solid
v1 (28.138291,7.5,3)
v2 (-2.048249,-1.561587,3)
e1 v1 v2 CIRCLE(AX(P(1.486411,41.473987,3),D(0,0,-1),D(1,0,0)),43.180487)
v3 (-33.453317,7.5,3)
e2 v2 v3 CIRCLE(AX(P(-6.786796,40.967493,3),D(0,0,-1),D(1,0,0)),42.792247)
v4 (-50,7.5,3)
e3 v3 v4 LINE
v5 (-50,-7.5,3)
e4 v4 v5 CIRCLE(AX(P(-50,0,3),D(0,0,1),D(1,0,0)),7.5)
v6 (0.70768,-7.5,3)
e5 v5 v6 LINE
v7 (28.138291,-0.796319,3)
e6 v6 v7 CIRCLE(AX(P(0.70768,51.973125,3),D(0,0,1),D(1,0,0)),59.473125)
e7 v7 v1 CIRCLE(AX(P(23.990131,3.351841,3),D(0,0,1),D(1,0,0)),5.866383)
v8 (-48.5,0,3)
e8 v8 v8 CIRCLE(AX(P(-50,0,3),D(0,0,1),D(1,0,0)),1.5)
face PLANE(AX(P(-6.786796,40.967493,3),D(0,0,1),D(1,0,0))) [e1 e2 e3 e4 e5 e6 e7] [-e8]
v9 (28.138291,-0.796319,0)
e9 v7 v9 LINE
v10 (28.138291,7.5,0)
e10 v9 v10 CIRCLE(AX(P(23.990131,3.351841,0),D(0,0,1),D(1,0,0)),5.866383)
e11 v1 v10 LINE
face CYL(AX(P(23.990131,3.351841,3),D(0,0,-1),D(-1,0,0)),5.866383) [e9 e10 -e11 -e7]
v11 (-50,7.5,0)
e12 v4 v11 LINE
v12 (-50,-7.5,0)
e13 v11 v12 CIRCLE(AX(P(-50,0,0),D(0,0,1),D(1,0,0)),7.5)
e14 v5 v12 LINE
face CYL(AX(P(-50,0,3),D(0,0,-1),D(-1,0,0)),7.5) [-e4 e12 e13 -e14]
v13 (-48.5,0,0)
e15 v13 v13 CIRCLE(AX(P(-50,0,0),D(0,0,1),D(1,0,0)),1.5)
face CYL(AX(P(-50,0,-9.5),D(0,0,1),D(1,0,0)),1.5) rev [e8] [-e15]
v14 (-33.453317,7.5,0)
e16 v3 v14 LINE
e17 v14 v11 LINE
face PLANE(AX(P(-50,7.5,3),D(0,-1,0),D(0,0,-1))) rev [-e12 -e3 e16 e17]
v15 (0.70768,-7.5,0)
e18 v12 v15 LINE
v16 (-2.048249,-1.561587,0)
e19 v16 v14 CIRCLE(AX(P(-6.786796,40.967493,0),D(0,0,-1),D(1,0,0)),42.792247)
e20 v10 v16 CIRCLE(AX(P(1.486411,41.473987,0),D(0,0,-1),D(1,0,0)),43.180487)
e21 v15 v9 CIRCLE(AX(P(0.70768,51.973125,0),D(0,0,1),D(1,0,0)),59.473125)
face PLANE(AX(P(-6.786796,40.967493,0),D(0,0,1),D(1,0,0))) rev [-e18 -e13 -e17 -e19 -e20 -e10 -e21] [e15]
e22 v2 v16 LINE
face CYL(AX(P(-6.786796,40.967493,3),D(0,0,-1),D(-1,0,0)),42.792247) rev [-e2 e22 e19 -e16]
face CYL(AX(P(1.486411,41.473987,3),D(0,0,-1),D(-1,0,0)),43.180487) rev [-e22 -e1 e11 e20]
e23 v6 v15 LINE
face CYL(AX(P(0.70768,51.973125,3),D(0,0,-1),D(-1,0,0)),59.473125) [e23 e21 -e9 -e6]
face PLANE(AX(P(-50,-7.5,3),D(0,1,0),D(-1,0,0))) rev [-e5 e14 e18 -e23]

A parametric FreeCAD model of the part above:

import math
import FreeCAD as App
import Part
import Sketcher

doc = App.newDocument("Part")
body = doc.addObject("PartDesign::Body", "Body")

# Sketch on XY plane
sketch1 = body.newObject("Sketcher::SketchObject", "Sketch")
sketch1.AttachmentSupport = (doc.getObject("XY_Plane"), [""])
sketch1.MapMode = "FlatFace"
sketch1.addGeometry([
    Part.LineSegment(App.Vector(-33, 8, 0), App.Vector(-50, 8, 0)),  # 0
    Part.ArcOfCircle(Part.Circle(App.Vector(-50, 0, 0), App.Vector(0, 0, 1), 8), math.radians(90), math.radians(270)),  # 1
    Part.LineSegment(App.Vector(-50, -8, 0), App.Vector(1, -8, 0)),  # 2
    Part.ArcOfCircle(Part.Circle(App.Vector(1, 52, 0), App.Vector(0, 0, 1), 59), math.radians(-90), math.radians(-63)),  # 3
    Part.ArcOfCircle(Part.Circle(App.Vector(24, 3, 0), App.Vector(0, 0, 1), 6), math.radians(-45), math.radians(45)),  # 4
    Part.ArcOfCircle(Part.Circle(App.Vector(1, 41, 0), App.Vector(0, 0, 1), 43), math.radians(-95), math.radians(-52)),  # 5
    Part.ArcOfCircle(Part.Circle(App.Vector(-7, 41, 0), App.Vector(0, 0, 1), 43), math.radians(-129), math.radians(-84)),  # 6
], False)
sketch1.addConstraint([
    Sketcher.Constraint("Tangent", 0, 2, 1, 1),
    Sketcher.Constraint("Tangent", 1, 2, 2, 1),
    Sketcher.Constraint("Tangent", 2, 2, 3, 1),
    Sketcher.Constraint("Coincident", 3, 2, 4, 1),
    Sketcher.Constraint("Coincident", 4, 2, 5, 2),
    Sketcher.Constraint("Coincident", 5, 1, 6, 2),
    Sketcher.Constraint("Coincident", 6, 1, 0, 1),
    Sketcher.Constraint("Horizontal", 0),
    Sketcher.Constraint("Horizontal", 2),
    Sketcher.Constraint("PointOnObject", 1, 3, -1),
    Sketcher.Constraint("Horizontal", 0, 2, 4, 2),
    Sketcher.Constraint("Vertical", 3, 2, 4, 2),
    Sketcher.Constraint("Radius", 1, 7.5),
    Sketcher.Constraint("DistanceX", 1, 3, -1, 1, 50.0),
    Sketcher.Constraint("Radius", 3, 59.473125),
    Sketcher.Constraint("Radius", 4, 5.866383),
    Sketcher.Constraint("Radius", 5, 43.180487),
    Sketcher.Constraint("Radius", 6, 42.792247),
    Sketcher.Constraint("DistanceX", 2, 1, 2, 2, 50.70768),
    Sketcher.Constraint("DistanceX", 0, 2, 0, 1, 16.546683),
    Sketcher.Constraint("DistanceX", -1, 1, 4, 3, 23.990131),
    Sketcher.Constraint("DistanceX", -1, 1, 5, 3, 1.486411),
    Sketcher.Constraint("DistanceX", 5, 1, -1, 1, 2.048249),
])
pad1 = body.newObject("PartDesign::Pad", "Pad")
pad1.Profile = sketch1
pad1.Length = 3

# Sketch on XY plane
sketch2 = body.newObject("Sketcher::SketchObject", "Sketch001")
sketch2.AttachmentSupport = (doc.getObject("XY_Plane"), [""])
sketch2.MapMode = "FlatFace"
sketch2.AttachmentOffset = App.Placement(App.Vector(0, 0, 3), App.Rotation())
sketch2.addGeometry(Part.Circle(App.Vector(-50, 0, 0), App.Vector(0, 0, 1), 1.5), False)
sketch2.addConstraint([
    Sketcher.Constraint("PointOnObject", 0, 3, -1),
    Sketcher.Constraint("Diameter", 0, 3.0),
    Sketcher.Constraint("DistanceX", 0, 3, -1, 1, 50.0),
])
pocket1 = body.newObject("PartDesign::Pocket", "Pocket")
pocket1.Profile = sketch2
pocket1.Length = 12.5

doc.recompute()
